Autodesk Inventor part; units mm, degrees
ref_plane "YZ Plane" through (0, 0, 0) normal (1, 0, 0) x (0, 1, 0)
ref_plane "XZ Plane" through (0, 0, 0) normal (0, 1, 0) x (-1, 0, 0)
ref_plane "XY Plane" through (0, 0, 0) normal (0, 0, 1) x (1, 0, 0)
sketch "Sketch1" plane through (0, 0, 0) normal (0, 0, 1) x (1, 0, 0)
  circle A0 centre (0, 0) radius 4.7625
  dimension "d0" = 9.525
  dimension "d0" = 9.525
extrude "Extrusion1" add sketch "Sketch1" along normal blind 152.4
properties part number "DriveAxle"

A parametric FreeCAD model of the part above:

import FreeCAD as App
import Part
import Sketcher
Q = App.Units.Quantity

doc = App.newDocument("Part")
body = doc.addObject("PartDesign::Body", "Body")

# Sketch on XY plane
sketch1 = body.newObject("Sketcher::SketchObject", "Sketch")
sketch1.AttachmentSupport = (doc.getObject("XY_Plane"), [""])
sketch1.MapMode = "FlatFace"
sketch1.addGeometry(Part.Circle(App.Vector(0, 0, 0), App.Vector(0, 0, 1), 4.8), False)
sketch1.addConstraint(Sketcher.Constraint("Coincident", 0, 3, -1, 1))
sketch1.addConstraint(Sketcher.Constraint("Diameter", 0, Q("0.375 in")))
pad1 = body.newObject("PartDesign::Pad", "Pad")
pad1.Profile = sketch1
pad1.Length = Q("6 in")

doc.recompute()
